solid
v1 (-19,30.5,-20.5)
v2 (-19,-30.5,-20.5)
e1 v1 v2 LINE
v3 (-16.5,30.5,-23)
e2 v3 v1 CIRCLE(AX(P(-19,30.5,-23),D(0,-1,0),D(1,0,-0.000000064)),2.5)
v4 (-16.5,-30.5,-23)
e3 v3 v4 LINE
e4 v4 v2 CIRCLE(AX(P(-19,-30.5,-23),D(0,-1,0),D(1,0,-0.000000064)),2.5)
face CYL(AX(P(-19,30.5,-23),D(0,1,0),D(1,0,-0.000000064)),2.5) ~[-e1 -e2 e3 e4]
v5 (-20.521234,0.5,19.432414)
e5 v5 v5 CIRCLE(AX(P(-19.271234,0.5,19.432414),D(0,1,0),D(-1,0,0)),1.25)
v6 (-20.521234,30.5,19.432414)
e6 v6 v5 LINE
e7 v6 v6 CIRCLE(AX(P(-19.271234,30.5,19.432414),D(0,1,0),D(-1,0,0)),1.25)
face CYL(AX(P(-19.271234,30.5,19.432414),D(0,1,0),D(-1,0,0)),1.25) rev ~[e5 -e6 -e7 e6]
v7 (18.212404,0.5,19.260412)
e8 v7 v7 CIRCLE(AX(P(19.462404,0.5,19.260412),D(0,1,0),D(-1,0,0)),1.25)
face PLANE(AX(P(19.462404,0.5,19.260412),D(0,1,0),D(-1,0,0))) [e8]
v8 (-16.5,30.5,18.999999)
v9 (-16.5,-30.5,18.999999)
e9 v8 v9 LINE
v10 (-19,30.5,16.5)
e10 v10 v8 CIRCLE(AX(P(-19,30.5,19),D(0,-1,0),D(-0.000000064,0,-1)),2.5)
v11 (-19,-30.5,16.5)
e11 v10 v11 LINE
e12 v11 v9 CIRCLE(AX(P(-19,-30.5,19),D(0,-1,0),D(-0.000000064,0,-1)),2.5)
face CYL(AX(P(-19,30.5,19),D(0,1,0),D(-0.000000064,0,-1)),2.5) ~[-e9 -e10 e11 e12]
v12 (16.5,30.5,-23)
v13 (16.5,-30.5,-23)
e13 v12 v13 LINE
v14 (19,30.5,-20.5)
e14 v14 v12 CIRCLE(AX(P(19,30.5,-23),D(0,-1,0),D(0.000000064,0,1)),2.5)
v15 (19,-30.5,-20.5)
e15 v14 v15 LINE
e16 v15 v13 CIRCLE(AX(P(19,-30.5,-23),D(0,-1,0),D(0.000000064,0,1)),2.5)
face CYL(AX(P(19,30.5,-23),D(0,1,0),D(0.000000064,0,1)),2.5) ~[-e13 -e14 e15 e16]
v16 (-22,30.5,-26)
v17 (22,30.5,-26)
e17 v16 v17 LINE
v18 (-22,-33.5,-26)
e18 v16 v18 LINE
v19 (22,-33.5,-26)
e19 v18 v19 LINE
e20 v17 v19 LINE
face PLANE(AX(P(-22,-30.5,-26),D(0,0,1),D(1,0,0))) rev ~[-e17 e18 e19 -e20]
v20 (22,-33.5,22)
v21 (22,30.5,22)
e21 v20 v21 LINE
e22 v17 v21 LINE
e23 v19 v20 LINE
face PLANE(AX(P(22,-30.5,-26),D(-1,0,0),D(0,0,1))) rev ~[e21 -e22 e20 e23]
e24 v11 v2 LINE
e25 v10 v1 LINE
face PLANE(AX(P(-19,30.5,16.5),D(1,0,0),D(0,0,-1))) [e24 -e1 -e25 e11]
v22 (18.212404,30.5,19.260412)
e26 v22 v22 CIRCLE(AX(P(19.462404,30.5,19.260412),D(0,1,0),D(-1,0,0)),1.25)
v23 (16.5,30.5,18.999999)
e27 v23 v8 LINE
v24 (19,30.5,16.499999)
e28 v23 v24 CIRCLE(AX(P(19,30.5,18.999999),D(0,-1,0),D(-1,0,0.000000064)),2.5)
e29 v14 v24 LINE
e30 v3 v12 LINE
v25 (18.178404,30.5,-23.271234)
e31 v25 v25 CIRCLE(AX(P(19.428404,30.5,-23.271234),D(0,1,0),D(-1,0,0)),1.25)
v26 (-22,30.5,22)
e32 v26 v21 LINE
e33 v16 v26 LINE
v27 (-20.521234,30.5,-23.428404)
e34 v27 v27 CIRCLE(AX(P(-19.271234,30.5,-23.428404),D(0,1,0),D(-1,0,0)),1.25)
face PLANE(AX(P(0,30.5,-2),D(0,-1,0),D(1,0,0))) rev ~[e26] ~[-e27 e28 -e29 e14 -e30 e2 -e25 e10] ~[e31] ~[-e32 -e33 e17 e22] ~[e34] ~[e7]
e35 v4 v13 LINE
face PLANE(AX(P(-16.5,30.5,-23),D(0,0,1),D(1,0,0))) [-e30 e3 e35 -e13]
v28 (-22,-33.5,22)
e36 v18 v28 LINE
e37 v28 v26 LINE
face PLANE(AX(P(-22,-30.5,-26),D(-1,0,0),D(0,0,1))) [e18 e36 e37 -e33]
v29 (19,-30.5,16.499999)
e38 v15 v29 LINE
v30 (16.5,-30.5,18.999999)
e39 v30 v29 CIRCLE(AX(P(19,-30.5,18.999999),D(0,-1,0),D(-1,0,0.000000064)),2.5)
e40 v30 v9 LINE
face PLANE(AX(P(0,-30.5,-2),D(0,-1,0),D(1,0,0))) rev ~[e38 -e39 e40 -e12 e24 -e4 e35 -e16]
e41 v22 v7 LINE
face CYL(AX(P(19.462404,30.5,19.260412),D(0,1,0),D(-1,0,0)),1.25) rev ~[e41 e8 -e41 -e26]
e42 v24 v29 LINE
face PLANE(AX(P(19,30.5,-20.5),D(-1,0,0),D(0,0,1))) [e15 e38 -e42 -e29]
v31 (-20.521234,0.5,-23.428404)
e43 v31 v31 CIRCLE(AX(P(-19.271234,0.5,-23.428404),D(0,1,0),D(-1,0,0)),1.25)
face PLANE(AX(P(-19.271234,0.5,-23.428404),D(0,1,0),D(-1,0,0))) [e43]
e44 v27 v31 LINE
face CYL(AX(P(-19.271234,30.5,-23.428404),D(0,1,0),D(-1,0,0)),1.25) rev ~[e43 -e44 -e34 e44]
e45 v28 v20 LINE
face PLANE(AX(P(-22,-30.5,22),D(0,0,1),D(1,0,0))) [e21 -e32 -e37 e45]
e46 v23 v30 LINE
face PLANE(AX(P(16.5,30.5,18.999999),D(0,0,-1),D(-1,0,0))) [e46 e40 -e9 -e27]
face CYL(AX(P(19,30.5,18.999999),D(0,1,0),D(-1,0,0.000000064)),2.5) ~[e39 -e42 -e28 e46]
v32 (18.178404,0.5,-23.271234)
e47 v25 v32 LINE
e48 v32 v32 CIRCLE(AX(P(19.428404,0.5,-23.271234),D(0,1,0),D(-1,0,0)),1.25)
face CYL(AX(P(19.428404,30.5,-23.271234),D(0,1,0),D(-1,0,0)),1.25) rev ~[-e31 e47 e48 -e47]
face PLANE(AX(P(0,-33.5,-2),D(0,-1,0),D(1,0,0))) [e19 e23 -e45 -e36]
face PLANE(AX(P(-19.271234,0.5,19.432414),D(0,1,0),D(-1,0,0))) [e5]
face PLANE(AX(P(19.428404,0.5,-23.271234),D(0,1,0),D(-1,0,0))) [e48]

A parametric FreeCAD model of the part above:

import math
import FreeCAD as App
import Part
import Sketcher

V = App.Vector

doc = App.newDocument("Part")
body = doc.addObject("PartDesign::Body", "Body")

# Sketch on XZ plane
sketch1 = body.newObject("Sketcher::SketchObject", "Sketch")
sketch1.AttachmentSupport = (doc.getObject("XZ_Plane"), [""])
sketch1.MapMode = "FlatFace"
sketch1.AttachmentOffset = App.Placement(V(0, 0, -30.5), App.Rotation())
sketch1.addGeometry(Part.LineSegment(V(-22, 22, 0), V(-22, -26, 0)), False)
sketch1.addGeometry(Part.LineSegment(V(-22, -26, 0), V(22, -26, 0)), False)
sketch1.addGeometry(Part.LineSegment(V(22, -26, 0), V(22, 22, 0)), False)
sketch1.addGeometry(Part.LineSegment(V(22, 22, 0), V(-22, 22, 0)), False)
sketch1.addGeometry(Part.LineSegment(V(16.5, -23, 0), V(-16.5, -23, 0)), False)
sketch1.addGeometry(Part.ArcOfCircle(Part.Circle(V(-19, -23, 0), V(0, 0, 1), 2.5), math.radians(0), math.radians(90)), False)
sketch1.addGeometry(Part.LineSegment(V(-19, -20.5, 0), V(-19, 16.5, 0)), False)
sketch1.addGeometry(Part.ArcOfCircle(Part.Circle(V(-19, 19, 0), V(0, 0, 1), 2.5), math.radians(-90), math.radians(0)), False)
sketch1.addGeometry(Part.LineSegment(V(-16.5, 19, 0), V(16.5, 19, 0)), False)
sketch1.addGeometry(Part.ArcOfCircle(Part.Circle(V(19, 19, 0), V(0, 0, 1), 2.5), math.radians(180), math.radians(270)), False)
sketch1.addGeometry(Part.LineSegment(V(19, 16.5, 0), V(19, -20.5, 0)), False)
sketch1.addGeometry(Part.ArcOfCircle(Part.Circle(V(19, -23, 0), V(0, 0, 1), 2.5), math.radians(90), math.radians(180)), False)
sketch1.addConstraint(Sketcher.Constraint("Coincident", 0, 2, 1, 1))
sketch1.addConstraint(Sketcher.Constraint("Coincident", 1, 2, 2, 1))
sketch1.addConstraint(Sketcher.Constraint("Coincident", 2, 2, 3, 1))
sketch1.addConstraint(Sketcher.Constraint("Coincident", 3, 2, 0, 1))
sketch1.addConstraint(Sketcher.Constraint("Coincident", 4, 2, 5, 1))
sketch1.addConstraint(Sketcher.Constraint("Coincident", 5, 2, 6, 1))
sketch1.addConstraint(Sketcher.Constraint("Coincident", 6, 2, 7, 1))
sketch1.addConstraint(Sketcher.Constraint("Coincident", 7, 2, 8, 1))
sketch1.addConstraint(Sketcher.Constraint("Coincident", 8, 2, 9, 1))
sketch1.addConstraint(Sketcher.Constraint("Coincident", 9, 2, 10, 1))
sketch1.addConstraint(Sketcher.Constraint("Coincident", 10, 2, 11, 1))
sketch1.addConstraint(Sketcher.Constraint("Coincident", 11, 2, 4, 1))
sketch1.addConstraint(Sketcher.Constraint("Vertical", 0))
sketch1.addConstraint(Sketcher.Constraint("Horizontal", 1))
sketch1.addConstraint(Sketcher.Constraint("Vertical", 2))
sketch1.addConstraint(Sketcher.Constraint("Horizontal", 3))
sketch1.addConstraint(Sketcher.Constraint("Horizontal", 4))
sketch1.addConstraint(Sketcher.Constraint("Vertical", 6))
sketch1.addConstraint(Sketcher.Constraint("Horizontal", 8))
sketch1.addConstraint(Sketcher.Constraint("Vertical", 10))
sketch1.addConstraint(Sketcher.Constraint("Equal", 5, 7))
sketch1.addConstraint(Sketcher.Constraint("Equal", 7, 9))
sketch1.addConstraint(Sketcher.Constraint("Equal", 9, 11))
sketch1.addConstraint(Sketcher.Constraint("Symmetric", 7, 3, 9, 3, -2))
sketch1.addConstraint(Sketcher.Constraint("Symmetric", 5, 3, 11, 3, -2))
sketch1.addConstraint(Sketcher.Constraint("Horizontal", 11, 3, 4, 2))
sketch1.addConstraint(Sketcher.Constraint("Horizontal", 9, 3, 7, 2))
sketch1.addConstraint(Sketcher.Constraint("Vertical", 5, 3, 7, 3))
sketch1.addConstraint(Sketcher.Constraint("Vertical", 7, 3, 5, 2))
sketch1.addConstraint(Sketcher.Constraint("Vertical", 11, 3, 9, 2))
sketch1.addConstraint(Sketcher.Constraint("Radius", 5, 2.5))
sketch1.addConstraint(Sketcher.Constraint("DistanceX", 1, 1, 1, 2, 44.0))
sketch1.addConstraint(Sketcher.Constraint("DistanceX", 4, 2, 4, 1, 33.0))
sketch1.addConstraint(Sketcher.Constraint("DistanceY", 0, 2, 0, 1, 48.0))
sketch1.addConstraint(Sketcher.Constraint("DistanceY", 6, 1, 6, 2, 37.0))
sketch1.addConstraint(Sketcher.Constraint("DistanceY", 5, 3, -1, 1, 23.0))
sketch1.addConstraint(Sketcher.Constraint("DistanceX", 0, 2, -1, 1, 22.0))
sketch1.addConstraint(Sketcher.Constraint("DistanceY", 0, 2, -1, 1, 26.0))
pad1 = body.newObject("PartDesign::Pad", "Pad")
pad1.Profile = sketch1
pad1.Length = 61

# Sketch on XZ plane
sketch2 = body.newObject("Sketcher::SketchObject", "Sketch001")
sketch2.AttachmentSupport = (doc.getObject("XZ_Plane"), [""])
sketch2.MapMode = "FlatFace"
sketch2.AttachmentOffset = App.Placement(V(0, 0, 30.5), App.Rotation())
sketch2.addGeometry(Part.LineSegment(V(-22, 22, 0), V(-22, -26, 0)), False)
sketch2.addGeometry(Part.LineSegment(V(-22, -26, 0), V(22, -26, 0)), False)
sketch2.addGeometry(Part.LineSegment(V(22, -26, 0), V(22, 22, 0)), False)
sketch2.addGeometry(Part.LineSegment(V(22, 22, 0), V(-22, 22, 0)), False)
sketch2.addConstraint(Sketcher.Constraint("Coincident", 0, 2, 1, 1))
sketch2.addConstraint(Sketcher.Constraint("Coincident", 1, 2, 2, 1))
sketch2.addConstraint(Sketcher.Constraint("Coincident", 2, 2, 3, 1))
sketch2.addConstraint(Sketcher.Constraint("Coincident", 3, 2, 0, 1))
sketch2.addConstraint(Sketcher.Constraint("Vertical", 0))
sketch2.addConstraint(Sketcher.Constraint("Horizontal", 1))
sketch2.addConstraint(Sketcher.Constraint("Vertical", 2))
sketch2.addConstraint(Sketcher.Constraint("Horizontal", 3))
sketch2.addConstraint(Sketcher.Constraint("DistanceX", 1, 1, 1, 2, 44.0))
sketch2.addConstraint(Sketcher.Constraint("DistanceY", 0, 2, 0, 1, 48.0))
sketch2.addConstraint(Sketcher.Constraint("DistanceX", 0, 2, -1, 1, 22.0))
sketch2.addConstraint(Sketcher.Constraint("DistanceY", 0, 2, -1, 1, 26.0))
pad2 = body.newObject("PartDesign::Pad", "Pad001")
pad2.Profile = sketch2
pad2.Length = 3

# Sketch on XZ plane
sketch3 = body.newObject("Sketcher::SketchObject", "Sketch002")
sketch3.AttachmentSupport = (doc.getObject("XZ_Plane"), [""])
sketch3.MapMode = "FlatFace"
sketch3.AttachmentOffset = App.Placement(V(0, 0, -30.5), App.Rotation())
sketch3.addGeometry(Part.Circle(V(19.5, 19.3, 0), V(0, 0, 1), 1.2), False)
sketch3.addGeometry(Part.Circle(V(-19.3, 19.4, 0), V(0, 0, 1), 1.2), False)
sketch3.addGeometry(Part.Circle(V(-19.3, -23.4, 0), V(0, 0, 1), 1.2), False)
sketch3.addGeometry(Part.Circle(V(19.4, -23.3, 0), V(0, 0, 1), 1.2), False)
sketch3.addConstraint(Sketcher.Constraint("Equal", 0, 1))
sketch3.addConstraint(Sketcher.Constraint("Equal", 1, 2))
sketch3.addConstraint(Sketcher.Constraint("Equal", 2, 3))
sketch3.addConstraint(Sketcher.Constraint("Vertical", 1, 3, 2, 3))
sketch3.addConstraint(Sketcher.Constraint("Diameter", 0, 2.5))
sketch3.addConstraint(Sketcher.Constraint("DistanceX", 3, 3, 0, 3, 0.034))
sketch3.addConstraint(Sketcher.Constraint("DistanceY", -1, 1, 0, 3, 19.260412))
sketch3.addConstraint(Sketcher.Constraint("DistanceY", 2, 3, 1, 3, 42.860818))
sketch3.addConstraint(Sketcher.Constraint("DistanceY", 2, 3, 3, 3, 0.15717))
sketch3.addConstraint(Sketcher.Constraint("DistanceX", -1, 1, 0, 3, 19.462404))
sketch3.addConstraint(Sketcher.Constraint("DistanceX", 1, 3, -1, 1, 19.271234))
sketch3.addConstraint(Sketcher.Constraint("DistanceY", -1, 1, 1, 3, 19.432414))
pocket1 = body.newObject("PartDesign::Pocket", "Pocket")
pocket1.Profile = sketch3
pocket1.Length = 30
pocket1.Reversed = True

doc.recompute()
